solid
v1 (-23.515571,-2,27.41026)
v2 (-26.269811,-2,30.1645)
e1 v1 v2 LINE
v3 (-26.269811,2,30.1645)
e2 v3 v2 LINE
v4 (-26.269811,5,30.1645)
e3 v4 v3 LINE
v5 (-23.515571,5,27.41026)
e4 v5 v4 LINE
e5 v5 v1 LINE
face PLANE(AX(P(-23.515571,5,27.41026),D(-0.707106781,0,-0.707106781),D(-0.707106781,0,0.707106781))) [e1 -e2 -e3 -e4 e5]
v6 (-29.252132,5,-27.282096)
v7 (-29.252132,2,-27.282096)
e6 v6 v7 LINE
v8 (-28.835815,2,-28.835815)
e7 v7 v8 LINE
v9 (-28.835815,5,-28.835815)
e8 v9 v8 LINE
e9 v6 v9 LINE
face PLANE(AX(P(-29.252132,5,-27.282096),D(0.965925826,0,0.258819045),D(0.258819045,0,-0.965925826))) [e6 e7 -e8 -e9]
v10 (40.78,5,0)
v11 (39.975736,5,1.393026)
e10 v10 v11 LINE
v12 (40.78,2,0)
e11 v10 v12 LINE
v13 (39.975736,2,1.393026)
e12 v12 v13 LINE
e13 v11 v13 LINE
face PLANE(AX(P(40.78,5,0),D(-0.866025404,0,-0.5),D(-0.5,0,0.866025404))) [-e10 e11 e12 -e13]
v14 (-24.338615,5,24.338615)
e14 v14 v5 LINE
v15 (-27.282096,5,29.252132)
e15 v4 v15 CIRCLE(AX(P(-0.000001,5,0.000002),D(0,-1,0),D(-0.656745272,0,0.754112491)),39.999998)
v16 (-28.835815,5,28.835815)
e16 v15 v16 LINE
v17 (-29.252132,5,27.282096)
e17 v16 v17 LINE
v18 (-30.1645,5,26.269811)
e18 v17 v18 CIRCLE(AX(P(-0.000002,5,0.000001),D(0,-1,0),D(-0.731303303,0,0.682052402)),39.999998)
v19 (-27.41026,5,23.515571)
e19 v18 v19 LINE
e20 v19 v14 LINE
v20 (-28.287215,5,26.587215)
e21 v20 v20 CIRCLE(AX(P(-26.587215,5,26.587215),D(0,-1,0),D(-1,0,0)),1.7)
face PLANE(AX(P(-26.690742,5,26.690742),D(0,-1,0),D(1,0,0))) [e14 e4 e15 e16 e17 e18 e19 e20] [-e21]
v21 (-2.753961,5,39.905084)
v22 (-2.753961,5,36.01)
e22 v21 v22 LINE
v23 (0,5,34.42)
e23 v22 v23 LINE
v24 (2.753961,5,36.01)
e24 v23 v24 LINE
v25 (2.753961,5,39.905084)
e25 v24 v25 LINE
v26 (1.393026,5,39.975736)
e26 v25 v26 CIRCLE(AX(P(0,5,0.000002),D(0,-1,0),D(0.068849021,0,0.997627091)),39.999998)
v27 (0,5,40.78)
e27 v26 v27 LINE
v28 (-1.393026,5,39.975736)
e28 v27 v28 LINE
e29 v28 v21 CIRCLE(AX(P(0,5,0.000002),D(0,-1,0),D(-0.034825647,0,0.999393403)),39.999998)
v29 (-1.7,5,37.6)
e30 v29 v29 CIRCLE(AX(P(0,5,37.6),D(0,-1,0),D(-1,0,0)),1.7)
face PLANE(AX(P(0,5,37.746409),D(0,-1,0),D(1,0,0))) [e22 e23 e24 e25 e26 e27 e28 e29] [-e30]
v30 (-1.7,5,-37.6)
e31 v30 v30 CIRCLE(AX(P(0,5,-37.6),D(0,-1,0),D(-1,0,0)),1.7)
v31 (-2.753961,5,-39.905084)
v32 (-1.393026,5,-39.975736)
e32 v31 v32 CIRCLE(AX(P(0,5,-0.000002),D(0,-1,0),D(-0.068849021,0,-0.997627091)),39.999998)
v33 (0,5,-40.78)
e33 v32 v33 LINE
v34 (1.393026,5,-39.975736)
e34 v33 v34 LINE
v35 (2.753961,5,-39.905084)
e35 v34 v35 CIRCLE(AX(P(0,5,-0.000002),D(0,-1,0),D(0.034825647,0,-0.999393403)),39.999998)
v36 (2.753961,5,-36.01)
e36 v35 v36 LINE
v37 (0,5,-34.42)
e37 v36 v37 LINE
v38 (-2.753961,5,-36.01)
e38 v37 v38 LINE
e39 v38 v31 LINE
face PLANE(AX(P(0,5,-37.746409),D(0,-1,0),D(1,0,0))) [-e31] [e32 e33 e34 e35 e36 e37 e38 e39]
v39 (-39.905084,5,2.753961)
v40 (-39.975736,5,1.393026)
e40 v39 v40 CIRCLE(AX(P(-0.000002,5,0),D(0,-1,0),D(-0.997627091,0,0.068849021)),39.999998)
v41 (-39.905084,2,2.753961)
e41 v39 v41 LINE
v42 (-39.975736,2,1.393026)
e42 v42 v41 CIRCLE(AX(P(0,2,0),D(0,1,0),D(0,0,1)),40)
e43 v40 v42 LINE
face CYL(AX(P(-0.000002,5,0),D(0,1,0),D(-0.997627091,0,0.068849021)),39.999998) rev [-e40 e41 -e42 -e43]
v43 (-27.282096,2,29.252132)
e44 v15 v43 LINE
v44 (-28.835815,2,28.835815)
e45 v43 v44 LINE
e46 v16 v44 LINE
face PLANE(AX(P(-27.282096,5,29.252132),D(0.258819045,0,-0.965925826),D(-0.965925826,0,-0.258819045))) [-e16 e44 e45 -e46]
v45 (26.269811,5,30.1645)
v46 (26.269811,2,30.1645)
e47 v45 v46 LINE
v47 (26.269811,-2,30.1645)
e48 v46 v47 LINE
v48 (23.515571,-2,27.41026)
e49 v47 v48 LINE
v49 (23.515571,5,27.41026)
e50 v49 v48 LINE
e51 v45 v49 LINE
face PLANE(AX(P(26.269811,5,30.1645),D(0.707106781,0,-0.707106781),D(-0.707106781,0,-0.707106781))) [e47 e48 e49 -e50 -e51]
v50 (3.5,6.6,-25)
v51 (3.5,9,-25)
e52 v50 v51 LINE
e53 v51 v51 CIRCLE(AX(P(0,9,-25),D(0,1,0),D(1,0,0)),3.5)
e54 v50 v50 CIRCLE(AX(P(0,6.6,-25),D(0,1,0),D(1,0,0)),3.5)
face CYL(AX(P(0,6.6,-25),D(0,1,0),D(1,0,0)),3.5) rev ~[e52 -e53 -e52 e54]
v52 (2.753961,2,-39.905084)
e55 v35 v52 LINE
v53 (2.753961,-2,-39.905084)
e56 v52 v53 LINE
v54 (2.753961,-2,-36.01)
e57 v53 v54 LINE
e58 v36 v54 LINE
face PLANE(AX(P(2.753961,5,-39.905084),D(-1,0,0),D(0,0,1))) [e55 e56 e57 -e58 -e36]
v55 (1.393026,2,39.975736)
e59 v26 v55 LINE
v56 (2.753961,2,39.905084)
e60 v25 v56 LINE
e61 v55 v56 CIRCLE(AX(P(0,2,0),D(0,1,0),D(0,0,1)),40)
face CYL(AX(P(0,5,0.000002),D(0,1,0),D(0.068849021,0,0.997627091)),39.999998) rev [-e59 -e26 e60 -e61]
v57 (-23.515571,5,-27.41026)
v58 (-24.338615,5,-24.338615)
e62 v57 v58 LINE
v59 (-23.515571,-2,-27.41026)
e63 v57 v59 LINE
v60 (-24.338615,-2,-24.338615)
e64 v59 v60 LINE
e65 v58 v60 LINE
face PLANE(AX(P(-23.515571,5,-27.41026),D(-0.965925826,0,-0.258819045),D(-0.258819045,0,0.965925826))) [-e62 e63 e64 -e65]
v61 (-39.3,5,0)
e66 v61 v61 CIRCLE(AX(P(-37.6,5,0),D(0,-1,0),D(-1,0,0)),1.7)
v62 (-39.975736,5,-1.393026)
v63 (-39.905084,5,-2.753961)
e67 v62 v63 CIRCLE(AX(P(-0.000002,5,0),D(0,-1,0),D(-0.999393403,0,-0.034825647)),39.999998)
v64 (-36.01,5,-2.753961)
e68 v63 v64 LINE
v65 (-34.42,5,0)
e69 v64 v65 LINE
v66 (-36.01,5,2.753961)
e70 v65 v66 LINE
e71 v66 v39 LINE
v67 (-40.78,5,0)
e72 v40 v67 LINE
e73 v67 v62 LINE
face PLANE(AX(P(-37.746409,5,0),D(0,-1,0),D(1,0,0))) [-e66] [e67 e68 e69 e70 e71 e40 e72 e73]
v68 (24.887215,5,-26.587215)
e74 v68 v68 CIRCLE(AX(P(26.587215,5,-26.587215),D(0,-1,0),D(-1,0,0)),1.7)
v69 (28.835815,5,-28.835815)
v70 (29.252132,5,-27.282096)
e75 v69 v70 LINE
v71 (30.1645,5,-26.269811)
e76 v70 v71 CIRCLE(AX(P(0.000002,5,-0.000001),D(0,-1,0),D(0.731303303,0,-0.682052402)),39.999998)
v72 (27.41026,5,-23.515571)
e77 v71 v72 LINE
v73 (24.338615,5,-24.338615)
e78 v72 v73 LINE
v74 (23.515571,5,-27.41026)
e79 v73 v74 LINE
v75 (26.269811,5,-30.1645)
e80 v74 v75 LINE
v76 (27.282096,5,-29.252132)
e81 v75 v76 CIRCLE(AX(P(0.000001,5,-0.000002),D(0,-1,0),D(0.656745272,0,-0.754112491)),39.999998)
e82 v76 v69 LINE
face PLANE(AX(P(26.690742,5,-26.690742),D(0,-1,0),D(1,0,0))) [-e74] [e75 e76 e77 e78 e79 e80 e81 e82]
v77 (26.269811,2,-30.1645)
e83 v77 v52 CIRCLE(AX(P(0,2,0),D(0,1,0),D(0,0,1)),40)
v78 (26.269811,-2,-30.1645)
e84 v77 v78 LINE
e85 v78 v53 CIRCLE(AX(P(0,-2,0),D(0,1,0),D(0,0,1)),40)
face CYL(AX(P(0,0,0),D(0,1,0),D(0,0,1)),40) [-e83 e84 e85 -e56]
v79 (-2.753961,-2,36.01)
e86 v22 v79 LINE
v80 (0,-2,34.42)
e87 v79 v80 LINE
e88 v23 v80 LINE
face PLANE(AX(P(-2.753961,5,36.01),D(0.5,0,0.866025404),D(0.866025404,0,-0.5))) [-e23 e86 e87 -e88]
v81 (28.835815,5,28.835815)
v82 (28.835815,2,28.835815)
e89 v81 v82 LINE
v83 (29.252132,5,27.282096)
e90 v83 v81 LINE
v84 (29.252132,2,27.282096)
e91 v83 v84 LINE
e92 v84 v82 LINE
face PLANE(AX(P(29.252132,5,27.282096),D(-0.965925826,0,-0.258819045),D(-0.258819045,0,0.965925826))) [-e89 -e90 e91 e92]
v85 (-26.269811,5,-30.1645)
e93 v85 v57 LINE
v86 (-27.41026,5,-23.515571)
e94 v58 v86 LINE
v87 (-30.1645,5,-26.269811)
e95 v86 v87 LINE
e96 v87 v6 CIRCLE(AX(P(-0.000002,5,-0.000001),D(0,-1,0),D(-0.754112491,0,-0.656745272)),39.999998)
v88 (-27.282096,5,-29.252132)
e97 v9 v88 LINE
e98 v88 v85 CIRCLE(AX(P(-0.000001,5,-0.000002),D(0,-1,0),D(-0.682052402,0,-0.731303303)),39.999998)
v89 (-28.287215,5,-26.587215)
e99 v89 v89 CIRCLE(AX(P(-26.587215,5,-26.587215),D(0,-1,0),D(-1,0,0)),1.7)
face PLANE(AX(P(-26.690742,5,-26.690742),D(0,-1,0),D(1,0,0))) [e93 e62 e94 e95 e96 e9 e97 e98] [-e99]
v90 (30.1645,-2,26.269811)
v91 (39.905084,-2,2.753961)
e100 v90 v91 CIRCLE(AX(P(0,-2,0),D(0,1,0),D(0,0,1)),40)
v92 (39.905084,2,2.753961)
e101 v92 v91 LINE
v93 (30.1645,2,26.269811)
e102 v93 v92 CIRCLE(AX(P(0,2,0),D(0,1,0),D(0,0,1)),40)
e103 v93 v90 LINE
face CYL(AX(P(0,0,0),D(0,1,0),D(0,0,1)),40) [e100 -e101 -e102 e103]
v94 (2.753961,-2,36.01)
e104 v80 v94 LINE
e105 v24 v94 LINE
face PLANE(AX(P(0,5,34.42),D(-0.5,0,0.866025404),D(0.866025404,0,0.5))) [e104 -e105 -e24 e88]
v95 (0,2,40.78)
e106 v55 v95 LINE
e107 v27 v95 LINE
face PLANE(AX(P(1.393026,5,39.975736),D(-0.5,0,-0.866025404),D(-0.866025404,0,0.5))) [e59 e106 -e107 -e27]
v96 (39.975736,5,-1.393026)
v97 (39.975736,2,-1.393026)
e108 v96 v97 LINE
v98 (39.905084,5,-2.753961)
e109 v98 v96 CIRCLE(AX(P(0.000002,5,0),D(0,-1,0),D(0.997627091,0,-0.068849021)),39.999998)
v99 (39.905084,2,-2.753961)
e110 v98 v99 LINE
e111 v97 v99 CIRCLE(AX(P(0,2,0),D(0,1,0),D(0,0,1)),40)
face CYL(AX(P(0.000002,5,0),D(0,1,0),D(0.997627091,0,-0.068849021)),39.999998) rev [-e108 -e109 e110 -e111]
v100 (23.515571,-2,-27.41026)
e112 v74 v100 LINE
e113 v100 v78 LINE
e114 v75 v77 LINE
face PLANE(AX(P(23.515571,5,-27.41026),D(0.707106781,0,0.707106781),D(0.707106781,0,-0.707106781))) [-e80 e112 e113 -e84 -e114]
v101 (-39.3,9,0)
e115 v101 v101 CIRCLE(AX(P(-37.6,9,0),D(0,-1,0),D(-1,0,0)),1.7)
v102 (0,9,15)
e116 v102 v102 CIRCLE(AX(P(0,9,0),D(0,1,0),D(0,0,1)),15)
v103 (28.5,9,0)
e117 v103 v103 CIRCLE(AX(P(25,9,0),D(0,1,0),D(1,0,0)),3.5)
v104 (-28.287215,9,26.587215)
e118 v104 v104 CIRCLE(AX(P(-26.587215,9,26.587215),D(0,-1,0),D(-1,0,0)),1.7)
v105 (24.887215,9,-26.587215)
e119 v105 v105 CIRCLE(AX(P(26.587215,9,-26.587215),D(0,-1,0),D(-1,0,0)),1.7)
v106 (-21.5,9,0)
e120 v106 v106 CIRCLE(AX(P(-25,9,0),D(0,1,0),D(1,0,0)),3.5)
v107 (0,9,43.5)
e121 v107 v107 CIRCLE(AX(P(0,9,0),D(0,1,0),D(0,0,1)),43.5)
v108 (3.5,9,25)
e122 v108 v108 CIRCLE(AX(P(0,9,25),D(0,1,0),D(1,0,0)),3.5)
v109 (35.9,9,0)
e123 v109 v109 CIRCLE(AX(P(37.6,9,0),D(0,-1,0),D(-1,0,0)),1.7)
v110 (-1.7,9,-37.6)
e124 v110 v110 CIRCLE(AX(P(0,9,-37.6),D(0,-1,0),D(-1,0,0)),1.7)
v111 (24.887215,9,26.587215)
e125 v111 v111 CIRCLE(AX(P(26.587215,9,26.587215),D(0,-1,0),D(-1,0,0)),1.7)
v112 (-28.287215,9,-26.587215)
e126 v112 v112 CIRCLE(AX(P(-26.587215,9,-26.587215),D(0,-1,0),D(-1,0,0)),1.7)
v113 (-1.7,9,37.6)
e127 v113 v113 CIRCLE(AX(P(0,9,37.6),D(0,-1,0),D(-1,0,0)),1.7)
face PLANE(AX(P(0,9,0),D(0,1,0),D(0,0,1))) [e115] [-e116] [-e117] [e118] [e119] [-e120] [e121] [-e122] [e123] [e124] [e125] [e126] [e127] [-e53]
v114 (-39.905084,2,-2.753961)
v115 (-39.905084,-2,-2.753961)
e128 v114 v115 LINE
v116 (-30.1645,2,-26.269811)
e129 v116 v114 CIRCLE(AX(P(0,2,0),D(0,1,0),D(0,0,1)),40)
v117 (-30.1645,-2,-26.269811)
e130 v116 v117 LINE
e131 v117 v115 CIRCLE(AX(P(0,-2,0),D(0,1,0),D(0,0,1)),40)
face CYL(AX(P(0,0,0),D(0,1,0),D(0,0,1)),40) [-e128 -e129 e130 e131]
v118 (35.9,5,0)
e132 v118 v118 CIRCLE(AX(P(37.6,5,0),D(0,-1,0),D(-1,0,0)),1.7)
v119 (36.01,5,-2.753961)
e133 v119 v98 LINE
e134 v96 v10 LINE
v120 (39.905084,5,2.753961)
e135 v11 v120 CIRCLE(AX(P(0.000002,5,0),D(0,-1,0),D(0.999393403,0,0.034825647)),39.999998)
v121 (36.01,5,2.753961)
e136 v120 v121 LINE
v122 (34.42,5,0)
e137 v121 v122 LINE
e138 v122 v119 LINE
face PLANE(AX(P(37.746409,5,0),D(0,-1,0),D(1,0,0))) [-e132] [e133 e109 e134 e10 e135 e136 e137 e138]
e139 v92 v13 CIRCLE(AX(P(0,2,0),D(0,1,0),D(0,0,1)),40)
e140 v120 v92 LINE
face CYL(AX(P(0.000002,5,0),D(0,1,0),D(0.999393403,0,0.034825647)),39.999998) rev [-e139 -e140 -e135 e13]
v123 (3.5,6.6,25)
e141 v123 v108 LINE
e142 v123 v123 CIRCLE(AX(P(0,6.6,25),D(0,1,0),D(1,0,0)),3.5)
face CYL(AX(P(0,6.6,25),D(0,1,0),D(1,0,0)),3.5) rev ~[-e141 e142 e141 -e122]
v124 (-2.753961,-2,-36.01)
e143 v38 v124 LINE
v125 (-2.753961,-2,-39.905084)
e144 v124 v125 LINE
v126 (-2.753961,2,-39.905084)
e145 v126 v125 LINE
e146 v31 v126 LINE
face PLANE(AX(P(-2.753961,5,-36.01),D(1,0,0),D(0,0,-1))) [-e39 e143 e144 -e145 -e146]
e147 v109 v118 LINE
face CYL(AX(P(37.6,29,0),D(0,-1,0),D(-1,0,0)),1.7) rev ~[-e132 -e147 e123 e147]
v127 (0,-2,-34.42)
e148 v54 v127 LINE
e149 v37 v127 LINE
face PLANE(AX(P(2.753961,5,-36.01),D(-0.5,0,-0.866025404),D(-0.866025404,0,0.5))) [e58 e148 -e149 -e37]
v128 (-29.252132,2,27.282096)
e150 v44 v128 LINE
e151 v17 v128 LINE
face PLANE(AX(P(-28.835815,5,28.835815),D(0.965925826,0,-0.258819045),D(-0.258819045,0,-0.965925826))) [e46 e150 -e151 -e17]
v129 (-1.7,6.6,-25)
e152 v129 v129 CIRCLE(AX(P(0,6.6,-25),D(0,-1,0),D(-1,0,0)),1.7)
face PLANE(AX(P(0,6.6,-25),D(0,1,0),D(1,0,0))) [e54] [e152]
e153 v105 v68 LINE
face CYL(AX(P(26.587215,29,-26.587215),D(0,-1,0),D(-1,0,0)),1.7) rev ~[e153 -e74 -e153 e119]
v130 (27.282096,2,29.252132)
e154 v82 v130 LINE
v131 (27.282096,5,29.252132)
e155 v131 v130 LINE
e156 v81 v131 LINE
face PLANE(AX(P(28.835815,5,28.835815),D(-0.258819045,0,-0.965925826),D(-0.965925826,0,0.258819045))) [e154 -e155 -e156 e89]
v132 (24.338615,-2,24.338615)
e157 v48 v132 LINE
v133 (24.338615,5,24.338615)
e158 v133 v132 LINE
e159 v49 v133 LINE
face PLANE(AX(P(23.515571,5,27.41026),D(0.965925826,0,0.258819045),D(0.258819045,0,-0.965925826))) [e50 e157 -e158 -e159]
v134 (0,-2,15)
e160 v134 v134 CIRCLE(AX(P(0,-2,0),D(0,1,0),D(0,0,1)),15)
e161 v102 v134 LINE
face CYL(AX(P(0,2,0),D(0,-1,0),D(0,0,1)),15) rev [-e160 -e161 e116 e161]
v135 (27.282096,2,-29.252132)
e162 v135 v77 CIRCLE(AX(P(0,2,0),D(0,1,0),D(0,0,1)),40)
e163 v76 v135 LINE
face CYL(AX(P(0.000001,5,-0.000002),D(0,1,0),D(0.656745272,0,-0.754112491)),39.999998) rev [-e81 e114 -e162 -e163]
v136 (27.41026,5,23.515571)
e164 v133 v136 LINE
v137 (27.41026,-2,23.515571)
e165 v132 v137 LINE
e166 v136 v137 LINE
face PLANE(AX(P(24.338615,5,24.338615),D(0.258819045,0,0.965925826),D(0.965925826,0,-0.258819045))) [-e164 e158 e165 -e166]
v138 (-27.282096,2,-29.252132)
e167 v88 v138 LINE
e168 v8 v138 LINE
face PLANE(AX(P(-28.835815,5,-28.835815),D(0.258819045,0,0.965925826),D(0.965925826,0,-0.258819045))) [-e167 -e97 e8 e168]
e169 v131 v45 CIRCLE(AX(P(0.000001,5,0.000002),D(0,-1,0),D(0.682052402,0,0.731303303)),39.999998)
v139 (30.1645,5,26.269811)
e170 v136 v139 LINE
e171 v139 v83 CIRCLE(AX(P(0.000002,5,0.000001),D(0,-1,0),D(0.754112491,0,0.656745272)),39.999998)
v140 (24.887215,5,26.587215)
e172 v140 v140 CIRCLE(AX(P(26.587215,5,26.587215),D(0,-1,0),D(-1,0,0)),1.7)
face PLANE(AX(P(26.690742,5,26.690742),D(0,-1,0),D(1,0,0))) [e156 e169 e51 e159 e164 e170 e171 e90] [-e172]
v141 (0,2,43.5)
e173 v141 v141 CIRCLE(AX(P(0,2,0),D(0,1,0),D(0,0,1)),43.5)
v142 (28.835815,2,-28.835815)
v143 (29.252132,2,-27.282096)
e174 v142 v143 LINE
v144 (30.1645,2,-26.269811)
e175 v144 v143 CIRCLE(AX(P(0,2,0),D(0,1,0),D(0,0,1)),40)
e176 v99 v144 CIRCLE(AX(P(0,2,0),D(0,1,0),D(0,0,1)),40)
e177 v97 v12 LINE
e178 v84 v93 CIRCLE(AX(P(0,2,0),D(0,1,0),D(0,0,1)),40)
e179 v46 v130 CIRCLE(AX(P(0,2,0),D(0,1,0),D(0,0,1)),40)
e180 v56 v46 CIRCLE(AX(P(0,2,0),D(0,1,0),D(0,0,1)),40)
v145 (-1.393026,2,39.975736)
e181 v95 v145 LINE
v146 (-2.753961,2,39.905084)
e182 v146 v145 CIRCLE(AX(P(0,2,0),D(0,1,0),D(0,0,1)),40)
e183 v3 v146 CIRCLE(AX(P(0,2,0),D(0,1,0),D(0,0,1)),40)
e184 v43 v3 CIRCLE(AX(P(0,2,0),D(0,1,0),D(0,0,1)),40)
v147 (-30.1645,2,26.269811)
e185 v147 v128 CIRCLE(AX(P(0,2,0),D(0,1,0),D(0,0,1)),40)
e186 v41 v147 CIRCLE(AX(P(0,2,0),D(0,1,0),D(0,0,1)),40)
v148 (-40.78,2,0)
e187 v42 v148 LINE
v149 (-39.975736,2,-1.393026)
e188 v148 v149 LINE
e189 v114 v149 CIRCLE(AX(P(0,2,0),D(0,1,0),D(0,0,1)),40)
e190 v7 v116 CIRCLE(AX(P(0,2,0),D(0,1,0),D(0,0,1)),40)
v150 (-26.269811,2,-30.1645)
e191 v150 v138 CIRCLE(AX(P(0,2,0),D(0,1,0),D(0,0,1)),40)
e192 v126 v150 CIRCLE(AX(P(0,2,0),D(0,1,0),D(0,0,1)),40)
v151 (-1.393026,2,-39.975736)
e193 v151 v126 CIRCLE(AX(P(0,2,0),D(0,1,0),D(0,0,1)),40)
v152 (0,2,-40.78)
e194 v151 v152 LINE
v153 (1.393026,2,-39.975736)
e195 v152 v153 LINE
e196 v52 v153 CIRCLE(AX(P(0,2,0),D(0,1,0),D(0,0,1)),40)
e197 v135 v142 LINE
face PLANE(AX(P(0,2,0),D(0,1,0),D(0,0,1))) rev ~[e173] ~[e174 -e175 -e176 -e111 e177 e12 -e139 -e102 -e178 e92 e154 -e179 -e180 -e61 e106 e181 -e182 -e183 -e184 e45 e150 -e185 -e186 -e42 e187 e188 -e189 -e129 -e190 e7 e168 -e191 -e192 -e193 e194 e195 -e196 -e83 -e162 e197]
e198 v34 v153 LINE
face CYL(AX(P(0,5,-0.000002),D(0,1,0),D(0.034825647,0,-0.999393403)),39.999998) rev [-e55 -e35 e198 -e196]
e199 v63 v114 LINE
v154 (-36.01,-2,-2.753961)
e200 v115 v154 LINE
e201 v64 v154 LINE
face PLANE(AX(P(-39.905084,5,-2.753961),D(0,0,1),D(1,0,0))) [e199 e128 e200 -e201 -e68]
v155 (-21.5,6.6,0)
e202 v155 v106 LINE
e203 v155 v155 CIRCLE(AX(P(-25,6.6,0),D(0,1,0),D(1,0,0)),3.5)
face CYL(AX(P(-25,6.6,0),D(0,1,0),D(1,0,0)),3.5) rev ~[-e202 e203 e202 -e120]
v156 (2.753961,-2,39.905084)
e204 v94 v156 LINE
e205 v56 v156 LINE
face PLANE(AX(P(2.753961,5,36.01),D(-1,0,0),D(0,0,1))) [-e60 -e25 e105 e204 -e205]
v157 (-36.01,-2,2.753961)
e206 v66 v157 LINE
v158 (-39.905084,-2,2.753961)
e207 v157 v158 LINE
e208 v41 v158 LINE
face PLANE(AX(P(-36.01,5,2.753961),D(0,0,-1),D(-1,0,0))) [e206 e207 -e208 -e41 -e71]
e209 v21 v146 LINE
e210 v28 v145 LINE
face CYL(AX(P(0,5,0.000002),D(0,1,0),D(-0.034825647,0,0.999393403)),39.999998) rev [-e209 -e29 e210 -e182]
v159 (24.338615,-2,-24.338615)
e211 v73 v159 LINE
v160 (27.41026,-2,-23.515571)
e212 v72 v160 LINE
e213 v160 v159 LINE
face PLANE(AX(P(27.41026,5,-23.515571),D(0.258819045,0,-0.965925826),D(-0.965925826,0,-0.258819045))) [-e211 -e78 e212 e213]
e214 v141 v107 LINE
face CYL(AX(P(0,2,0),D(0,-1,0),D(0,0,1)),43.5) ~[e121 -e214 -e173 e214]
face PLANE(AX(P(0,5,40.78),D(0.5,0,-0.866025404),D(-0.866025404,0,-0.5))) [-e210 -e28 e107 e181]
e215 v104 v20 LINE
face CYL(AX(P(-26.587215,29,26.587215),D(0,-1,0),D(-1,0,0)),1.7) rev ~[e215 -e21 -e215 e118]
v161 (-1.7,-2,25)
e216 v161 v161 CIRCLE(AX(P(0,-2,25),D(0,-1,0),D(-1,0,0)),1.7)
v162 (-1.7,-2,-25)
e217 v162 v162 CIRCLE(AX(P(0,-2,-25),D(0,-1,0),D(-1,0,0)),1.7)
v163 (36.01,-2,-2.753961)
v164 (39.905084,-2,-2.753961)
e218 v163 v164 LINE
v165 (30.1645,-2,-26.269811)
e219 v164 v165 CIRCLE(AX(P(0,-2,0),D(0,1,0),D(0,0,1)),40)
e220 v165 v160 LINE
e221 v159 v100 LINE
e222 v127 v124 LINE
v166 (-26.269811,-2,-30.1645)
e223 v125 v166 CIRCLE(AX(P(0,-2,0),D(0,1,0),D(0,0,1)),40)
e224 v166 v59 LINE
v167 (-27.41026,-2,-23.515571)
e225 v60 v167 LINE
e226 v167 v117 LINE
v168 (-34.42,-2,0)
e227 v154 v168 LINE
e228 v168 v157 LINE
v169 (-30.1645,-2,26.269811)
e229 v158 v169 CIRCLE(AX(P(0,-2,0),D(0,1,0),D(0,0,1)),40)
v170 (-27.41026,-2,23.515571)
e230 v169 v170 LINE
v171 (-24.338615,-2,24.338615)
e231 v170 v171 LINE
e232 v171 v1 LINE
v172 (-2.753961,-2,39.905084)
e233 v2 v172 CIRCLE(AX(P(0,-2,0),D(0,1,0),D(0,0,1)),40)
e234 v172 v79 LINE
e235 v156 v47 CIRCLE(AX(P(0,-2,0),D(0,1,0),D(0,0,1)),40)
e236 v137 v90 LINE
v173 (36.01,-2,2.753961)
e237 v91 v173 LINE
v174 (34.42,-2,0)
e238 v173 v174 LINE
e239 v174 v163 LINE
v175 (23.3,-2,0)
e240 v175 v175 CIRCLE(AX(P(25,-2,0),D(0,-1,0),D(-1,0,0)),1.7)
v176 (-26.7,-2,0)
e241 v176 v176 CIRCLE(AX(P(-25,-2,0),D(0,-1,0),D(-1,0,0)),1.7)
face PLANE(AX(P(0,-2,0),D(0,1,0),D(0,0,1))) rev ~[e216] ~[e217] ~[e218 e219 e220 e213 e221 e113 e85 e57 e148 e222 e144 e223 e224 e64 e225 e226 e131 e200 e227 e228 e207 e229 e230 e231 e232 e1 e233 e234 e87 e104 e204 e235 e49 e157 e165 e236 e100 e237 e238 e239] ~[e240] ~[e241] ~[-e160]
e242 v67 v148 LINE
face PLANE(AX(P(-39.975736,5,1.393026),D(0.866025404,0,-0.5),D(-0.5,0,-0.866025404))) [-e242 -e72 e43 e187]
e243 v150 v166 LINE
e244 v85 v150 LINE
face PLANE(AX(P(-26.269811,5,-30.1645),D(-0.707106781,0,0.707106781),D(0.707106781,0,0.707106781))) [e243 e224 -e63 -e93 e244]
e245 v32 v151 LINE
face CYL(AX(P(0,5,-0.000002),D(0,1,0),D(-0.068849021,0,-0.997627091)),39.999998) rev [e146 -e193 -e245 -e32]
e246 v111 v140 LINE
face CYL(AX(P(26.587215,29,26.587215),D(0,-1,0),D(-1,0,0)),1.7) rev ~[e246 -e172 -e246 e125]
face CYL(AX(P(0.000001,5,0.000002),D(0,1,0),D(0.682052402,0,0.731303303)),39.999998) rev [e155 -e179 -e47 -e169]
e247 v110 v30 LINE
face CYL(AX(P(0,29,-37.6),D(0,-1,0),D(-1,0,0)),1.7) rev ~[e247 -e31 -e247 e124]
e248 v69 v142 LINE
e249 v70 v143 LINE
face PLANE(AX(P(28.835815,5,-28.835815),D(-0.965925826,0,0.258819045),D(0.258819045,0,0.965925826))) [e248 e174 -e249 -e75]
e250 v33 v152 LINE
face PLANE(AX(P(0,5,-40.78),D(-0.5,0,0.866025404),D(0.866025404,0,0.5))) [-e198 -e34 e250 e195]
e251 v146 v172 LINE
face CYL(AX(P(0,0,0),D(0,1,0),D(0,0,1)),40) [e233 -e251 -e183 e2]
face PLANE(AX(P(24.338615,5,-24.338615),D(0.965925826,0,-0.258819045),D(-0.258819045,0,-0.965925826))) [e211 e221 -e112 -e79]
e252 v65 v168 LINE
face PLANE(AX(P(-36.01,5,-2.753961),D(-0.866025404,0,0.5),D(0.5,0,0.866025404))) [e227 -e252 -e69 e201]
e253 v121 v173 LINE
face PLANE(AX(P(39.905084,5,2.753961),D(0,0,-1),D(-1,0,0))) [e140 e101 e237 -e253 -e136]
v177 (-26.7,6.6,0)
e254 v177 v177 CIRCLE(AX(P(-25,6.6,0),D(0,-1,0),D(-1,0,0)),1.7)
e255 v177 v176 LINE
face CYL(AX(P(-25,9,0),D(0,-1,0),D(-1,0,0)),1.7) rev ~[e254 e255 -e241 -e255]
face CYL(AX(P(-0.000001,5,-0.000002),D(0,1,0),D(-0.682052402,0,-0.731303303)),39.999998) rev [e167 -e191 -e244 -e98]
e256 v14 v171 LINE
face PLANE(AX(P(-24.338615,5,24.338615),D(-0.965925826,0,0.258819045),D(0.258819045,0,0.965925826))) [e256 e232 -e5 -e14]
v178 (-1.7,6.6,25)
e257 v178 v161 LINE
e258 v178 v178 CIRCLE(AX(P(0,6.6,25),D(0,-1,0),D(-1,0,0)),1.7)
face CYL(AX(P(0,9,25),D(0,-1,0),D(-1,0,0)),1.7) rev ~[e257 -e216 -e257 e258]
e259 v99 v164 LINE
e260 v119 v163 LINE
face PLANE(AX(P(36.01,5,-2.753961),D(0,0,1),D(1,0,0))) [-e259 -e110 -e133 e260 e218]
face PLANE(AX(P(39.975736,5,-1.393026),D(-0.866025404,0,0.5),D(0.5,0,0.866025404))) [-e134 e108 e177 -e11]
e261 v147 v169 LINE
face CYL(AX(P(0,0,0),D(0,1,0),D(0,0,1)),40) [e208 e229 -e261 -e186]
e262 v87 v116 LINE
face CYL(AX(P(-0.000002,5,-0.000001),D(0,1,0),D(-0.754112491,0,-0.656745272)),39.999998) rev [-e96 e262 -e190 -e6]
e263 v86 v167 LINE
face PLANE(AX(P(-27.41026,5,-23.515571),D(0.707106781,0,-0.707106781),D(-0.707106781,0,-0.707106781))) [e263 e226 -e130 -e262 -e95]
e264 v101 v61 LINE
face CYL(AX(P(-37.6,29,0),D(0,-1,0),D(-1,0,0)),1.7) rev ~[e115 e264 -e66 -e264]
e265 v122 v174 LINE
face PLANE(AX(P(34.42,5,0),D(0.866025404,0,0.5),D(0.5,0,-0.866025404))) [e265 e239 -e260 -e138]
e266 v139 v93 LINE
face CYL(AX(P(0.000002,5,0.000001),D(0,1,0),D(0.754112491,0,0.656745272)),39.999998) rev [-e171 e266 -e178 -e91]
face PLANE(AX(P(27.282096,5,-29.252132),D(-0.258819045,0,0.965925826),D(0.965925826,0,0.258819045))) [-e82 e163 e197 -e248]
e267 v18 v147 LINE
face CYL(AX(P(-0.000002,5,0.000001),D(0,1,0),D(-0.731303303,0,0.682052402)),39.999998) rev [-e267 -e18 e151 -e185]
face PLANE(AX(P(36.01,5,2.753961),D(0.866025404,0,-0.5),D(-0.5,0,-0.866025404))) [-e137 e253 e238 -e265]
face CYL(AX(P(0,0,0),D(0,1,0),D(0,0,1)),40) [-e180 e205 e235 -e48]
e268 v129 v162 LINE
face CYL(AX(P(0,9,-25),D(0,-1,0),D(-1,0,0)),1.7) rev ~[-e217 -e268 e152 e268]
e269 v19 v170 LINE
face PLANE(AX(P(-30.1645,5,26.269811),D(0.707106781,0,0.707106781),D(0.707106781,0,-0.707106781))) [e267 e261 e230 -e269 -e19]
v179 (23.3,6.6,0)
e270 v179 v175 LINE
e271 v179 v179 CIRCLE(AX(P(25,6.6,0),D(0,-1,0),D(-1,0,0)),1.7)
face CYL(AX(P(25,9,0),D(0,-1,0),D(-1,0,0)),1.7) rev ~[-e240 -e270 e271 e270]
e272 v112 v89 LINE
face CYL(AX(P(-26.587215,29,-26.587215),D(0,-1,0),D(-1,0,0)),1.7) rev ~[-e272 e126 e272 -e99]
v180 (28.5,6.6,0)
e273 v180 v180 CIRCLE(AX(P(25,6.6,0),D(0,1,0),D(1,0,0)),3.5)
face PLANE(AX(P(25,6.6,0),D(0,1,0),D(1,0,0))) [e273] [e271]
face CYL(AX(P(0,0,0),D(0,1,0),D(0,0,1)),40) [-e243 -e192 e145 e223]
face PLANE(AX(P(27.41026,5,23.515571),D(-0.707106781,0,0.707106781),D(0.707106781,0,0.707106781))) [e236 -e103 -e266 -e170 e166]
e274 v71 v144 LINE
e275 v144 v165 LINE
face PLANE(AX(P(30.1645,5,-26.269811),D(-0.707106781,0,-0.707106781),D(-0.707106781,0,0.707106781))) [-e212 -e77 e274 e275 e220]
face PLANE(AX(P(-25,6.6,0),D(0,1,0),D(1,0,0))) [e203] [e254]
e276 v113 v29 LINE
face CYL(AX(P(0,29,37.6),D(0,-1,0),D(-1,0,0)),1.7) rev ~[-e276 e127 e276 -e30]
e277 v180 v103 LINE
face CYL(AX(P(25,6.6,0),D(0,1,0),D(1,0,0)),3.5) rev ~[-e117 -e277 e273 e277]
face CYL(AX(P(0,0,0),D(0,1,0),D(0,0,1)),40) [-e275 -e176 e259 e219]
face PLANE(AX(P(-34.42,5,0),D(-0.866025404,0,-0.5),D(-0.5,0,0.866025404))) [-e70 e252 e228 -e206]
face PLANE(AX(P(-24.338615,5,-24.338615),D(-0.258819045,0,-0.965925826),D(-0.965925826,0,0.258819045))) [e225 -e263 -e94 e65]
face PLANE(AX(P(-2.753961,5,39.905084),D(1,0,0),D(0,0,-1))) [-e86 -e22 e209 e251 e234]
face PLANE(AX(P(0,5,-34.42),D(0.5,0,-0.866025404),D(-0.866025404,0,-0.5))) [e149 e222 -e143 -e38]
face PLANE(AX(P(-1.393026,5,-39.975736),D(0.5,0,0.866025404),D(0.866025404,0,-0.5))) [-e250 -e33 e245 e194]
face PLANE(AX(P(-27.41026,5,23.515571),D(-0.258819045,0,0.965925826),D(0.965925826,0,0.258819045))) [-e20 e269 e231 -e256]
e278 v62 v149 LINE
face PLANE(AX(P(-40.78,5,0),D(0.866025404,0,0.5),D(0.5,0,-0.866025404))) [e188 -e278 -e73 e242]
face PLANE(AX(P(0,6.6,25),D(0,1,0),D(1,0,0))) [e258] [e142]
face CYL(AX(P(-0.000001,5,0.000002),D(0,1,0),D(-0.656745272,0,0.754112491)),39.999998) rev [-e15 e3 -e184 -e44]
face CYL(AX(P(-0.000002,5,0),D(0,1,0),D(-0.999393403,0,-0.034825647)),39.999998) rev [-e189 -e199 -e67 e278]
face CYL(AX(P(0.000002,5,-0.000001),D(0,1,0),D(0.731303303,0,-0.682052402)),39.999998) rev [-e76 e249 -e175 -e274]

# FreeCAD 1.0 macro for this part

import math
import FreeCAD as App
import Part
import Sketcher

V = App.Vector
Q = App.Units.Quantity

doc = App.newDocument("Part")
body = doc.addObject("PartDesign::Body", "Body")

sketch1 = body.newObject("Sketcher::SketchObject", "Sketch")
sketch1.AttachmentSupport = (doc.getObject("XZ_Plane"), [""])
sketch1.MapMode = "FlatFace"
sketch1.addGeometry(Part.Circle(V(0, 0, 0), V(0, 0, 1), 40), False)
sketch1.addGeometry(Part.Circle(V(0, 0, 0), V(0, 0, 1), 15), False)
sketch1.addConstraint(Sketcher.Constraint("Coincident", 0, 3, -1, 1))
sketch1.addConstraint(Sketcher.Constraint("Coincident", 1, 3, -1, 1))
sketch1.addConstraint(Sketcher.Constraint("Diameter", 0, Q("80 mm")))
sketch1.addConstraint(Sketcher.Constraint("Diameter", 1, Q("30 mm")))
pad1 = body.newObject("PartDesign::Pad", "Pad")
pad1.Profile = sketch1
pad1.Length = 4
pad1.Midplane = True

sketch2 = body.newObject("Sketcher::SketchObject", "Sketch001")
sketch2.AttachmentSupport = (doc.getObject("XZ_Plane"), [""])
sketch2.MapMode = "FlatFace"
sketch2.AttachmentOffset = App.Placement(V(0, 0, -2), App.Rotation())
sketch2.addGeometry(Part.Circle(V(0, 0, 0), V(0, 0, 1), 43.5), False)
sketch2.addGeometry(Part.Circle(V(0, 0, 0), V(0, 0, 1), 15), False)
sketch2.addConstraint(Sketcher.Constraint("Coincident", 0, 3, -1, 1))
sketch2.addConstraint(Sketcher.Constraint("Coincident", 1, 3, -1, 1))
sketch2.addConstraint(Sketcher.Constraint("Diameter", 0, Q("87 mm")))
sketch2.addConstraint(Sketcher.Constraint("Diameter", 1, Q("30 mm")))
pad2 = body.newObject("PartDesign::Pad", "Pad001")
pad2.Profile = sketch2
pad2.Length = 7
pad2.Reversed = True

sketch3 = body.newObject("Sketcher::SketchObject", "Sketch002")
sketch3.AttachmentSupport = (doc.getObject("XZ_Plane"), [""])
sketch3.MapMode = "FlatFace"
sketch3.AttachmentOffset = App.Placement(V(0, 0, -9), App.Rotation())
sketch3.addGeometry(Part.Circle(V(0, -37.6, 0), V(0, 0, 1), 1.7), False)
sketch3.addGeometry(Part.Circle(V(26.587215, -26.587215, 0), V(0, 0, 1), 1.7), False)
sketch3.addGeometry(Part.Circle(V(37.6, 0, 0), V(0, 0, 1), 1.7), False)
sketch3.addGeometry(Part.Circle(V(26.587215, 26.587215, 0), V(0, 0, 1), 1.7), False)
sketch3.addGeometry(Part.Circle(V(0, 37.6, 0), V(0, 0, 1), 1.7), False)
sketch3.addGeometry(Part.Circle(V(-26.587215, 26.587215, 0), V(0, 0, 1), 1.7), False)
sketch3.addGeometry(Part.Circle(V(-37.6, 0, 0), V(0, 0, 1), 1.7), False)
sketch3.addGeometry(Part.Circle(V(-26.587215, -26.587215, 0), V(0, 0, 1), 1.7), False)
sketch3.addConstraint(Sketcher.Constraint("Equal", 0, 1))
sketch3.addConstraint(Sketcher.Constraint("Equal", 1, 2))
sketch3.addConstraint(Sketcher.Constraint("Equal", 2, 3))
sketch3.addConstraint(Sketcher.Constraint("Equal", 3, 4))
sketch3.addConstraint(Sketcher.Constraint("Equal", 4, 5))
sketch3.addConstraint(Sketcher.Constraint("Equal", 5, 6))
sketch3.addConstraint(Sketcher.Constraint("Equal", 6, 7))
sketch3.addConstraint(Sketcher.Constraint("Symmetric", 0, 3, 4, 3, -1, 1))
sketch3.addConstraint(Sketcher.Constraint("Symmetric", 1, 3, 5, 3, -1, 1))
sketch3.addConstraint(Sketcher.Constraint("Symmetric", 2, 3, 6, 3, -1, 1))
sketch3.addConstraint(Sketcher.Constraint("Symmetric", 3, 3, 7, 3, -1, 1))
sketch3.addConstraint(Sketcher.Constraint("Symmetric", 3, 3, 5, 3, -2))
sketch3.addConstraint(Sketcher.Constraint("PointOnObject", 0, 3, -2))
sketch3.addConstraint(Sketcher.Constraint("PointOnObject", 2, 3, -1))
sketch3.addConstraint(Sketcher.Constraint("Diameter", 0, Q("3.4 mm")))
sketch3.addConstraint(Sketcher.Constraint("DistanceY", 0, 3, -1, 1, Q("37.6 mm")))
sketch3.addConstraint(Sketcher.Constraint("DistanceX", -1, 1, 2, 3, Q("37.6 mm")))
sketch3.addConstraint(Sketcher.Constraint("DistanceY", 1, 3, 3, 3, Q("53.17443 mm")))
sketch3.addConstraint(Sketcher.Constraint("DistanceX", 5, 3, 3, 3, Q("53.17443 mm")))
doc.recompute()
hole = body.newObject("PartDesign::Hole", "Hole")
hole.Profile = sketch3
hole.ThreadType = "None"
hole.Diameter = 3.4
hole.DepthType = "Dimension"
hole.Depth = 20
hole.DrillPoint = "Angled"
hole.DrillPointAngle = 118
hole.Reversed = True

sketch4 = body.newObject("Sketcher::SketchObject", "Sketch003")
sketch4.AttachmentSupport = (doc.getObject("XZ_Plane"), [""])
sketch4.MapMode = "FlatFace"
sketch4.AttachmentOffset = App.Placement(V(0, 0, -5), App.Rotation())
sketch4.addGeometry(Part.LineSegment(V(-2.753961, 36.01, 0), V(0, 34.42, 0)), False)
sketch4.addGeometry(Part.LineSegment(V(0, 34.42, 0), V(2.753961, 36.01, 0)), False)
sketch4.addGeometry(Part.LineSegment(V(2.753961, 36.01, 0), V(2.753961, 39.905084, 0)), False)
sketch4.addGeometry(Part.ArcOfCircle(Part.Circle(V(0, 0.000002, 0), V(0, 0, 1), 39.999998), math.radians(86.052119), math.radians(88.004234)), False)
sketch4.addGeometry(Part.LineSegment(V(1.393026, 39.975736, 0), V(0, 40.78, 0)), False)
sketch4.addGeometry(Part.LineSegment(V(0, 40.78, 0), V(-1.393026, 39.975736, 0)), False)
sketch4.addGeometry(Part.ArcOfCircle(Part.Circle(V(0, 0.000002, 0), V(0, 0, 1), 39.999998), math.radians(91.995766), math.radians(93.947881)), False)
sketch4.addGeometry(Part.LineSegment(V(-2.753961, 39.905084, 0), V(-2.753961, 36.01, 0)), False)
sketch4.addGeometry(Part.LineSegment(V(23.515571, 27.41026, 0), V(24.338615, 24.338615, 0)), False)
sketch4.addGeometry(Part.LineSegment(V(24.338615, 24.338615, 0), V(27.41026, 23.515571, 0)), False)
sketch4.addGeometry(Part.LineSegment(V(27.41026, 23.515571, 0), V(30.1645, 26.269811, 0)), False)
sketch4.addGeometry(Part.ArcOfCircle(Part.Circle(V(0.000002, 0.000001, 0), V(0, 0, 1), 39.999998), math.radians(41.052119), math.radians(43.004234)), False)
sketch4.addGeometry(Part.LineSegment(V(29.252132, 27.282096, 0), V(28.835815, 28.835815, 0)), False)
sketch4.addGeometry(Part.LineSegment(V(28.835815, 28.835815, 0), V(27.282096, 29.252132, 0)), False)
sketch4.addGeometry(Part.ArcOfCircle(Part.Circle(V(0.000001, 0.000002, 0), V(0, 0, 1), 39.999998), math.radians(46.995766), math.radians(48.947881)), False)
sketch4.addGeometry(Part.LineSegment(V(26.269811, 30.1645, 0), V(23.515571, 27.41026, 0)), False)
sketch4.addGeometry(Part.LineSegment(V(36.01, 2.753961, 0), V(34.42, 0, 0)), False)
sketch4.addGeometry(Part.LineSegment(V(34.42, 0, 0), V(36.01, -2.753961, 0)), False)
sketch4.addGeometry(Part.LineSegment(V(36.01, -2.753961, 0), V(39.905084, -2.753961, 0)), False)
sketch4.addGeometry(Part.ArcOfCircle(Part.Circle(V(0.000002, 0, 0), V(0, 0, 1), 39.999998), math.radians(-3.947881), math.radians(-1.995766)), False)
sketch4.addGeometry(Part.LineSegment(V(39.975736, -1.393026, 0), V(40.78, 0, 0)), False)
sketch4.addGeometry(Part.LineSegment(V(40.78, 0, 0), V(39.975736, 1.393026, 0)), False)
sketch4.addGeometry(Part.ArcOfCircle(Part.Circle(V(0.000002, 0, 0), V(0, 0, 1), 39.999998), math.radians(1.995766), math.radians(3.947881)), False)
sketch4.addGeometry(Part.LineSegment(V(39.905084, 2.753961, 0), V(36.01, 2.753961, 0)), False)
sketch4.addGeometry(Part.LineSegment(V(27.41026, -23.515571, 0), V(24.338615, -24.338615, 0)), False)
sketch4.addGeometry(Part.LineSegment(V(24.338615, -24.338615, 0), V(23.515571, -27.41026, 0)), False)
sketch4.addGeometry(Part.LineSegment(V(23.515571, -27.41026, 0), V(26.269811, -30.1645, 0)), False)
sketch4.addGeometry(Part.ArcOfCircle(Part.Circle(V(0.000001, -0.000002, 0), V(0, 0, 1), 39.999998), math.radians(-48.947881), math.radians(-46.995766)), False)
sketch4.addGeometry(Part.LineSegment(V(27.282096, -29.252132, 0), V(28.835815, -28.835815, 0)), False)
sketch4.addGeometry(Part.LineSegment(V(28.835815, -28.835815, 0), V(29.252132, -27.282096, 0)), False)
sketch4.addGeometry(Part.ArcOfCircle(Part.Circle(V(0.000002, -0.000001, 0), V(0, 0, 1), 39.999998), math.radians(-43.004234), math.radians(-41.052119)), False)
sketch4.addGeometry(Part.LineSegment(V(30.1645, -26.269811, 0), V(27.41026, -23.515571, 0)), False)
sketch4.addGeometry(Part.LineSegment(V(2.753961, -36.01, 0), V(0, -34.42, 0)), False)
sketch4.addGeometry(Part.LineSegment(V(0, -34.42, 0), V(-2.753961, -36.01, 0)), False)
sketch4.addGeometry(Part.LineSegment(V(-2.753961, -36.01, 0), V(-2.753961, -39.905084, 0)), False)
sketch4.addGeometry(Part.ArcOfCircle(Part.Circle(V(0, -0.000002, 0), V(0, 0, 1), 39.999998), math.radians(-93.947881), math.radians(-91.995766)), False)
sketch4.addGeometry(Part.LineSegment(V(-1.393026, -39.975736, 0), V(0, -40.78, 0)), False)
sketch4.addGeometry(Part.LineSegment(V(0, -40.78, 0), V(1.393026, -39.975736, 0)), False)
sketch4.addGeometry(Part.ArcOfCircle(Part.Circle(V(0, -0.000002, 0), V(0, 0, 1), 39.999998), math.radians(-88.004234), math.radians(-86.052119)), False)
sketch4.addGeometry(Part.LineSegment(V(2.753961, -39.905084, 0), V(2.753961, -36.01, 0)), False)
sketch4.addGeometry(Part.LineSegment(V(-23.515571, -27.41026, 0), V(-24.338615, -24.338615, 0)), False)
sketch4.addGeometry(Part.LineSegment(V(-24.338615, -24.338615, 0), V(-27.41026, -23.515571, 0)), False)
sketch4.addGeometry(Part.LineSegment(V(-27.41026, -23.515571, 0), V(-30.1645, -26.269811, 0)), False)
sketch4.addGeometry(Part.ArcOfCircle(Part.Circle(V(-0.000002, -0.000001, 0), V(0, 0, 1), 39.999998), math.radians(-138.947881), math.radians(-136.995766)), False)
sketch4.addGeometry(Part.LineSegment(V(-29.252132, -27.282096, 0), V(-28.835815, -28.835815, 0)), False)
sketch4.addGeometry(Part.LineSegment(V(-28.835815, -28.835815, 0), V(-27.282096, -29.252132, 0)), False)
sketch4.addGeometry(Part.ArcOfCircle(Part.Circle(V(-0.000001, -0.000002, 0), V(0, 0, 1), 39.999998), math.radians(-133.004234), math.radians(-131.052119)), False)
sketch4.addGeometry(Part.LineSegment(V(-26.269811, -30.1645, 0), V(-23.515571, -27.41026, 0)), False)
sketch4.addGeometry(Part.LineSegment(V(-36.01, -2.753961, 0), V(-34.42, 0, 0)), False)
sketch4.addGeometry(Part.LineSegment(V(-34.42, 0, 0), V(-36.01, 2.753961, 0)), False)
sketch4.addGeometry(Part.LineSegment(V(-36.01, 2.753961, 0), V(-39.905084, 2.753961, 0)), False)
sketch4.addGeometry(Part.ArcOfCircle(Part.Circle(V(-0.000002, 0, 0), V(0, 0, 1), 39.999998), math.radians(176.052119), math.radians(178.004234)), False)
sketch4.addGeometry(Part.LineSegment(V(-39.975736, 1.393026, 0), V(-40.78, 0, 0)), False)
sketch4.addGeometry(Part.LineSegment(V(-40.78, 0, 0), V(-39.975736, -1.393026, 0)), False)
sketch4.addGeometry(Part.ArcOfCircle(Part.Circle(V(-0.000002, 0, 0), V(0, 0, 1), 39.999998), math.radians(-178.004234), math.radians(-176.052119)), False)
sketch4.addGeometry(Part.LineSegment(V(-39.905084, -2.753961, 0), V(-36.01, -2.753961, 0)), False)
sketch4.addGeometry(Part.LineSegment(V(-27.41026, 23.515571, 0), V(-24.338615, 24.338615, 0)), False)
sketch4.addGeometry(Part.LineSegment(V(-24.338615, 24.338615, 0), V(-23.515571, 27.41026, 0)), False)
sketch4.addGeometry(Part.LineSegment(V(-23.515571, 27.41026, 0), V(-26.269811, 30.1645, 0)), False)
sketch4.addGeometry(Part.ArcOfCircle(Part.Circle(V(-0.000001, 0.000002, 0), V(0, 0, 1), 39.999998), math.radians(131.052119), math.radians(133.004234)), False)
sketch4.addGeometry(Part.LineSegment(V(-27.282096, 29.252132, 0), V(-28.835815, 28.835815, 0)), False)
sketch4.addGeometry(Part.LineSegment(V(-28.835815, 28.835815, 0), V(-29.252132, 27.282096, 0)), False)
sketch4.addGeometry(Part.ArcOfCircle(Part.Circle(V(-0.000002, 0.000001, 0), V(0, 0, 1), 39.999998), math.radians(136.995766), math.radians(138.947881)), False)
sketch4.addGeometry(Part.LineSegment(V(-30.1645, 26.269811, 0), V(-27.41026, 23.515571, 0)), False)
sketch4.addConstraint(Sketcher.Constraint("Coincident", 0, 2, 1, 1))
sketch4.addConstraint(Sketcher.Constraint("Coincident", 1, 2, 2, 1))
sketch4.addConstraint(Sketcher.Constraint("Coincident", 2, 2, 3, 1))
sketch4.addConstraint(Sketcher.Constraint("Coincident", 3, 2, 4, 1))
sketch4.addConstraint(Sketcher.Constraint("Coincident", 4, 2, 5, 1))
sketch4.addConstraint(Sketcher.Constraint("Coincident", 5, 2, 6, 1))
sketch4.addConstraint(Sketcher.Constraint("Coincident", 6, 2, 7, 1))
sketch4.addConstraint(Sketcher.Constraint("Coincident", 7, 2, 0, 1))
sketch4.addConstraint(Sketcher.Constraint("Coincident", 8, 2, 9, 1))
sketch4.addConstraint(Sketcher.Constraint("Coincident", 9, 2, 10, 1))
sketch4.addConstraint(Sketcher.Constraint("Coincident", 10, 2, 11, 1))
sketch4.addConstraint(Sketcher.Constraint("Coincident", 11, 2, 12, 1))
sketch4.addConstraint(Sketcher.Constraint("Coincident", 12, 2, 13, 1))
sketch4.addConstraint(Sketcher.Constraint("Coincident", 13, 2, 14, 1))
sketch4.addConstraint(Sketcher.Constraint("Coincident", 14, 2, 15, 1))
sketch4.addConstraint(Sketcher.Constraint("Coincident", 15, 2, 8, 1))
sketch4.addConstraint(Sketcher.Constraint("Coincident", 16, 2, 17, 1))
sketch4.addConstraint(Sketcher.Constraint("Coincident", 17, 2, 18, 1))
sketch4.addConstraint(Sketcher.Constraint("Coincident", 18, 2, 19, 1))
sketch4.addConstraint(Sketcher.Constraint("Coincident", 19, 2, 20, 1))
sketch4.addConstraint(Sketcher.Constraint("Coincident", 20, 2, 21, 1))
sketch4.addConstraint(Sketcher.Constraint("Coincident", 21, 2, 22, 1))
sketch4.addConstraint(Sketcher.Constraint("Coincident", 22, 2, 23, 1))
sketch4.addConstraint(Sketcher.Constraint("Coincident", 23, 2, 16, 1))
sketch4.addConstraint(Sketcher.Constraint("Coincident", 24, 2, 25, 1))
sketch4.addConstraint(Sketcher.Constraint("Coincident", 25, 2, 26, 1))
sketch4.addConstraint(Sketcher.Constraint("Coincident", 26, 2, 27, 1))
sketch4.addConstraint(Sketcher.Constraint("Coincident", 27, 2, 28, 1))
sketch4.addConstraint(Sketcher.Constraint("Coincident", 28, 2, 29, 1))
sketch4.addConstraint(Sketcher.Constraint("Coincident", 29, 2, 30, 1))
sketch4.addConstraint(Sketcher.Constraint("Coincident", 30, 2, 31, 1))
sketch4.addConstraint(Sketcher.Constraint("Coincident", 31, 2, 24, 1))
sketch4.addConstraint(Sketcher.Constraint("Coincident", 32, 2, 33, 1))
sketch4.addConstraint(Sketcher.Constraint("Coincident", 33, 2, 34, 1))
sketch4.addConstraint(Sketcher.Constraint("Coincident", 34, 2, 35, 1))
sketch4.addConstraint(Sketcher.Constraint("Coincident", 35, 2, 36, 1))
sketch4.addConstraint(Sketcher.Constraint("Coincident", 36, 2, 37, 1))
sketch4.addConstraint(Sketcher.Constraint("Coincident", 37, 2, 38, 1))
sketch4.addConstraint(Sketcher.Constraint("Coincident", 38, 2, 39, 1))
sketch4.addConstraint(Sketcher.Constraint("Coincident", 39, 2, 32, 1))
sketch4.addConstraint(Sketcher.Constraint("Coincident", 40, 2, 41, 1))
sketch4.addConstraint(Sketcher.Constraint("Coincident", 41, 2, 42, 1))
sketch4.addConstraint(Sketcher.Constraint("Coincident", 42, 2, 43, 1))
sketch4.addConstraint(Sketcher.Constraint("Coincident", 43, 2, 44, 1))
sketch4.addConstraint(Sketcher.Constraint("Coincident", 44, 2, 45, 1))
sketch4.addConstraint(Sketcher.Constraint("Coincident", 45, 2, 46, 1))
sketch4.addConstraint(Sketcher.Constraint("Coincident", 46, 2, 47, 1))
sketch4.addConstraint(Sketcher.Constraint("Coincident", 47, 2, 40, 1))
sketch4.addConstraint(Sketcher.Constraint("Coincident", 48, 2, 49, 1))
sketch4.addConstraint(Sketcher.Constraint("Coincident", 49, 2, 50, 1))
sketch4.addConstraint(Sketcher.Constraint("Coincident", 50, 2, 51, 1))
sketch4.addConstraint(Sketcher.Constraint("Coincident", 51, 2, 52, 1))
sketch4.addConstraint(Sketcher.Constraint("Coincident", 52, 2, 53, 1))
sketch4.addConstraint(Sketcher.Constraint("Coincident", 53, 2, 54, 1))
sketch4.addConstraint(Sketcher.Constraint("Coincident", 54, 2, 55, 1))
sketch4.addConstraint(Sketcher.Constraint("Coincident", 55, 2, 48, 1))
sketch4.addConstraint(Sketcher.Constraint("Coincident", 56, 2, 57, 1))
sketch4.addConstraint(Sketcher.Constraint("Coincident", 57, 2, 58, 1))
sketch4.addConstraint(Sketcher.Constraint("Coincident", 58, 2, 59, 1))
sketch4.addConstraint(Sketcher.Constraint("Coincident", 59, 2, 60, 1))
sketch4.addConstraint(Sketcher.Constraint("Coincident", 60, 2, 61, 1))
sketch4.addConstraint(Sketcher.Constraint("Coincident", 61, 2, 62, 1))
sketch4.addConstraint(Sketcher.Constraint("Coincident", 62, 2, 63, 1))
sketch4.addConstraint(Sketcher.Constraint("Coincident", 63, 2, 56, 1))
sketch4.addConstraint(Sketcher.Constraint("Vertical", 2))
sketch4.addConstraint(Sketcher.Constraint("Vertical", 7))
sketch4.addConstraint(Sketcher.Constraint("Horizontal", 18))
sketch4.addConstraint(Sketcher.Constraint("Horizontal", 23))
sketch4.addConstraint(Sketcher.Constraint("Vertical", 34))
sketch4.addConstraint(Sketcher.Constraint("Vertical", 39))
sketch4.addConstraint(Sketcher.Constraint("Horizontal", 50))
sketch4.addConstraint(Sketcher.Constraint("Horizontal", 55))
sketch4.addConstraint(Sketcher.Constraint("Coincident", 3, 3, -1, 1))
sketch4.addConstraint(Sketcher.Constraint("Coincident", 6, 3, -1, 1))
sketch4.addConstraint(Sketcher.Constraint("Coincident", 11, 3, -1, 1))
sketch4.addConstraint(Sketcher.Constraint("Coincident", 14, 3, -1, 1))
sketch4.addConstraint(Sketcher.Constraint("Coincident", 19, 3, -1, 1))
sketch4.addConstraint(Sketcher.Constraint("Coincident", 22, 3, -1, 1))
sketch4.addConstraint(Sketcher.Constraint("Coincident", 27, 3, -1, 1))
sketch4.addConstraint(Sketcher.Constraint("Coincident", 30, 3, -1, 1))
sketch4.addConstraint(Sketcher.Constraint("Coincident", 35, 3, -1, 1))
sketch4.addConstraint(Sketcher.Constraint("Coincident", 38, 3, -1, 1))
sketch4.addConstraint(Sketcher.Constraint("Coincident", 43, 3, -1, 1))
sketch4.addConstraint(Sketcher.Constraint("Coincident", 46, 3, -1, 1))
sketch4.addConstraint(Sketcher.Constraint("Coincident", 51, 3, -1, 1))
sketch4.addConstraint(Sketcher.Constraint("Coincident", 54, 3, -1, 1))
sketch4.addConstraint(Sketcher.Constraint("Coincident", 59, 3, -1, 1))
sketch4.addConstraint(Sketcher.Constraint("Coincident", 62, 3, -1, 1))
sketch4.addConstraint(Sketcher.Constraint("Equal", 3, 6))
sketch4.addConstraint(Sketcher.Constraint("Equal", 6, 11))
sketch4.addConstraint(Sketcher.Constraint("Equal", 11, 14))
sketch4.addConstraint(Sketcher.Constraint("Equal", 14, 19))
sketch4.addConstraint(Sketcher.Constraint("Equal", 19, 22))
sketch4.addConstraint(Sketcher.Constraint("Equal", 22, 27))
sketch4.addConstraint(Sketcher.Constraint("Equal", 27, 30))
sketch4.addConstraint(Sketcher.Constraint("Equal", 30, 35))
sketch4.addConstraint(Sketcher.Constraint("Equal", 35, 38))
sketch4.addConstraint(Sketcher.Constraint("Equal", 38, 43))
sketch4.addConstraint(Sketcher.Constraint("Equal", 43, 46))
sketch4.addConstraint(Sketcher.Constraint("Equal", 46, 51))
sketch4.addConstraint(Sketcher.Constraint("Equal", 51, 54))
sketch4.addConstraint(Sketcher.Constraint("Equal", 54, 59))
sketch4.addConstraint(Sketcher.Constraint("Equal", 59, 62))
sketch4.addConstraint(Sketcher.Constraint("Symmetric", 0, 2, 32, 2, -1, 1))
sketch4.addConstraint(Sketcher.Constraint("Symmetric", 1, 2, 33, 2, -1, 1))
sketch4.addConstraint(Sketcher.Constraint("Symmetric", 4, 2, 36, 2, -1, 1))
sketch4.addConstraint(Sketcher.Constraint("Symmetric", 7, 2, 39, 2, -1, 1))
sketch4.addConstraint(Sketcher.Constraint("Symmetric", 8, 2, 40, 2, -1, 1))
sketch4.addConstraint(Sketcher.Constraint("Symmetric", 9, 2, 41, 2, -1, 1))
sketch4.addConstraint(Sketcher.Constraint("Symmetric", 12, 2, 44, 2, -1, 1))
sketch4.addConstraint(Sketcher.Constraint("Symmetric", 15, 2, 47, 2, -1, 1))
sketch4.addConstraint(Sketcher.Constraint("Symmetric", 16, 2, 48, 2, -1, 1))
sketch4.addConstraint(Sketcher.Constraint("Symmetric", 17, 2, 49, 2, -1, 1))
sketch4.addConstraint(Sketcher.Constraint("Symmetric", 20, 2, 52, 2, -1, 1))
sketch4.addConstraint(Sketcher.Constraint("Symmetric", 23, 2, 55, 2, -1, 1))
sketch4.addConstraint(Sketcher.Constraint("Symmetric", 24, 2, 56, 2, -1, 1))
sketch4.addConstraint(Sketcher.Constraint("Symmetric", 25, 2, 57, 2, -1, 1))
sketch4.addConstraint(Sketcher.Constraint("Symmetric", 28, 2, 60, 2, -1, 1))
sketch4.addConstraint(Sketcher.Constraint("Symmetric", 31, 2, 63, 2, -1, 1))
sketch4.addConstraint(Sketcher.Constraint("Symmetric", 1, 2, 7, 2, -2))
sketch4.addConstraint(Sketcher.Constraint("Symmetric", 24, 2, 40, 2, -2))
sketch4.addConstraint(Sketcher.Constraint("Symmetric", 31, 2, 41, 2, -2))
sketch4.addConstraint(Sketcher.Constraint("Symmetric", 28, 2, 44, 2, -2))
sketch4.addConstraint(Sketcher.Constraint("Symmetric", 25, 2, 47, 2, -2))
sketch4.addConstraint(Sketcher.Constraint("Symmetric", 23, 2, 49, 2, -2))
sketch4.addConstraint(Sketcher.Constraint("PointOnObject", 0, 2, -2))
sketch4.addConstraint(Sketcher.Constraint("PointOnObject", 4, 2, -2))
sketch4.addConstraint(Sketcher.Constraint("PointOnObject", 16, 2, -1))
sketch4.addConstraint(Sketcher.Constraint("PointOnObject", 20, 2, -1))
sketch4.addConstraint(Sketcher.Constraint("Parallel", 0, 4))
sketch4.addConstraint(Sketcher.Constraint("Parallel", 1, 5))
sketch4.addConstraint(Sketcher.Constraint("Parallel", 8, 12))
sketch4.addConstraint(Sketcher.Constraint("Parallel", 9, 13))
sketch4.addConstraint(Sketcher.Constraint("Parallel", 10, 15))
sketch4.addConstraint(Sketcher.Constraint("Perpendicular", 4, 16))
sketch4.addConstraint(Sketcher.Constraint("Parallel", 16, 20))
sketch4.addConstraint(Sketcher.Constraint("Parallel", 17, 21))
sketch4.addConstraint(Sketcher.Constraint("Perpendicular", 12, 24))
sketch4.addConstraint(Sketcher.Constraint("Perpendicular", 15, 26))
sketch4.addConstraint(Sketcher.Constraint("Parallel", 24, 28))
sketch4.addConstraint(Sketcher.Constraint("Parallel", 25, 29))
sketch4.addConstraint(Sketcher.Constraint("Parallel", 26, 31))
sketch4.addConstraint(Sketcher.Constraint("Parallel", 32, 36))
sketch4.addConstraint(Sketcher.Constraint("Parallel", 33, 37))
sketch4.addConstraint(Sketcher.Constraint("Perpendicular", 31, 42))
sketch4.addConstraint(Sketcher.Constraint("Parallel", 40, 44))
sketch4.addConstraint(Sketcher.Constraint("Parallel", 41, 45))
sketch4.addConstraint(Sketcher.Constraint("Parallel", 42, 47))
sketch4.addConstraint(Sketcher.Constraint("Parallel", 48, 52))
sketch4.addConstraint(Sketcher.Constraint("Parallel", 49, 53))
sketch4.addConstraint(Sketcher.Constraint("Perpendicular", 47, 58))
sketch4.addConstraint(Sketcher.Constraint("Parallel", 56, 60))
sketch4.addConstraint(Sketcher.Constraint("Parallel", 57, 61))
sketch4.addConstraint(Sketcher.Constraint("Parallel", 58, 63))
sketch4.addConstraint(Sketcher.Constraint("Horizontal", 30, 2, 42, 2))
sketch4.addConstraint(Sketcher.Constraint("Equal", 55, 2))
sketch4.addConstraint(Sketcher.Constraint("Equal", 1, 8))
sketch4.addConstraint(Sketcher.Constraint("Equal", 8, 9))
sketch4.addConstraint(Sketcher.Constraint("Equal", 5, 12))
sketch4.addConstraint(Sketcher.Constraint("Equal", 12, 13))
sketch4.addConstraint(Sketcher.Constraint("Equal", 10, 15))
sketch4.addConstraint(Sketcher.Constraint("Equal", 9, 16))
sketch4.addConstraint(Sketcher.Constraint("Equal", 13, 20))
sketch4.addConstraint(Sketcher.Constraint("Angle", 0, Q("-30 deg")))
sketch4.addConstraint(Sketcher.Constraint("Angle", 8, Q("-75 deg")))
sketch4.addConstraint(Sketcher.Constraint("Distance", 0, Q("3.18 mm")))
sketch4.addConstraint(Sketcher.Constraint("DistanceY", -1, 1, 0, 2, Q("34.42 mm")))
sketch4.addConstraint(Sketcher.Constraint("DistanceY", -1, 1, 4, 2, Q("40.78 mm")))
sketch4.addConstraint(Sketcher.Constraint("Radius", 3, Q("39.999998 mm")))
sketch4.addConstraint(Sketcher.Constraint("DistanceX", -1, 1, 9, 2, Q("27.41026 mm")))
pocket1 = body.newObject("PartDesign::Pocket", "Pocket")
pocket1.Profile = sketch4
pocket1.Length = 7
pocket1.Reversed = True

sketch5 = body.newObject("Sketcher::SketchObject", "Sketch004")
sketch5.AttachmentSupport = (doc.getObject("XZ_Plane"), [""])
sketch5.MapMode = "FlatFace"
sketch5.AttachmentOffset = App.Placement(V(0, 0, -9), App.Rotation())
sketch5.addGeometry(Part.Circle(V(0, -25, 0), V(0, 0, 1), 1.7), False)
sketch5.addGeometry(Part.Circle(V(25, 0, 0), V(0, 0, 1), 1.7), False)
sketch5.addGeometry(Part.Circle(V(0, 25, 0), V(0, 0, 1), 1.7), False)
sketch5.addGeometry(Part.Circle(V(-25, 0, 0), V(0, 0, 1), 1.7), False)
sketch5.addConstraint(Sketcher.Constraint("Equal", 0, 1))
sketch5.addConstraint(Sketcher.Constraint("Equal", 1, 2))
sketch5.addConstraint(Sketcher.Constraint("Equal", 2, 3))
sketch5.addConstraint(Sketcher.Constraint("Symmetric", 0, 3, 2, 3, -1, 1))
sketch5.addConstraint(Sketcher.Constraint("Symmetric", 1, 3, 3, 3, -1, 1))
sketch5.addConstraint(Sketcher.Constraint("PointOnObject", 0, 3, -2))
sketch5.addConstraint(Sketcher.Constraint("PointOnObject", 1, 3, -1))
sketch5.addConstraint(Sketcher.Constraint("Diameter", 0, Q("3.4 mm")))
sketch5.addConstraint(Sketcher.Constraint("DistanceY", 0, 3, -1, 1, Q("25 mm")))
sketch5.addConstraint(Sketcher.Constraint("DistanceX", -1, 1, 1, 3, Q("25 mm")))
doc.recompute()
hole2 = body.newObject("PartDesign::Hole", "Hole001")
hole2.Profile = sketch5
hole2.ThreadType = "None"
hole2.Diameter = 3.4
hole2.DepthType = "Dimension"
hole2.Depth = 20
hole2.DrillPoint = "Angled"
hole2.DrillPointAngle = 118
hole2.HoleCutType = "Counterbore"
hole2.HoleCutDiameter = 7
hole2.HoleCutDepth = 2.4
hole2.Reversed = True

doc.recompute()
